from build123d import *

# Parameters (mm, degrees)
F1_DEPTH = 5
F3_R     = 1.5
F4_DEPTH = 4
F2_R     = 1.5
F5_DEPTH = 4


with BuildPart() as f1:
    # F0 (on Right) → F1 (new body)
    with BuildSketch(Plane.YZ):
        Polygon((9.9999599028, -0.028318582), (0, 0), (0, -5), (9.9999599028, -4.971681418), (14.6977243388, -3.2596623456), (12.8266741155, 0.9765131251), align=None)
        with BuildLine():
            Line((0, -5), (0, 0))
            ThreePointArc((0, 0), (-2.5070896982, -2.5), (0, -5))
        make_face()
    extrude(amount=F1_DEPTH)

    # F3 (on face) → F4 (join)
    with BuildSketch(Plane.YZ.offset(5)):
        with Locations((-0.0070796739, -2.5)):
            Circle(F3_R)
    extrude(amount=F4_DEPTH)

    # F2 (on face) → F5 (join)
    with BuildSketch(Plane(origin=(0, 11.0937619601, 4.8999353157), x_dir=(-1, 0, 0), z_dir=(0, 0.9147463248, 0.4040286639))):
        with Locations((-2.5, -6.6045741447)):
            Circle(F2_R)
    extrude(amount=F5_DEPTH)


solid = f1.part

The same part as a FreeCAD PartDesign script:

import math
import FreeCAD as App
import Part
import Sketcher
from FreeCAD import Vector

doc = App.newDocument("Part")
body = doc.addObject("PartDesign::Body", "Body")

sketch1 = body.newObject("Sketcher::SketchObject", "Sketch")
sketch1.AttachmentSupport = (doc.getObject("YZ_Plane"), [""])
sketch1.MapMode = "FlatFace"
sketch1.addGeometry([
    Part.LineSegment(Vector(10, 0, 0), Vector(0, 0, 0)),
    Part.ArcOfCircle(Part.Circle(Vector(0, -2.5, 0), Vector(0, 0, 1), 2.5), math.radians(90), math.radians(270)),
    Part.LineSegment(Vector(0, -5, 0), Vector(10, -5, 0)),
    Part.LineSegment(Vector(10, -5, 0), Vector(14.7, -3.3, 0)),
    Part.LineSegment(Vector(14.7, -3.3, 0), Vector(12.8, 1, 0)),
    Part.LineSegment(Vector(12.8, 1, 0), Vector(10, 0, 0)),
], False)
sketch1.addConstraint([
    Sketcher.Constraint("Tangent", 0, 2, 1, 1),
    Sketcher.Constraint("Tangent", 1, 2, 2, 1),
    Sketcher.Constraint("Coincident", 2, 2, 3, 1),
    Sketcher.Constraint("Coincident", 3, 2, 4, 1),
    Sketcher.Constraint("Coincident", 4, 2, 5, 1),
    Sketcher.Constraint("Coincident", 5, 2, 0, 1),
    Sketcher.Constraint("Coincident", 0, 2, -1, 1),
    Sketcher.Constraint("PointOnObject", 1, 2, -2),
    Sketcher.Constraint("Vertical", 2, 2, 5, 2),
    Sketcher.Constraint("Distance", 0, 10.0),
    Sketcher.Constraint("Distance", 3, 5.0),
    Sketcher.Constraint("Distance", 5, 3.0),
    Sketcher.Constraint("DistanceY", 1, 2, -1, 1, 5.0),
    Sketcher.Constraint("DistanceX", 1, 3, -1, 1, 0.00708),
    Sketcher.Constraint("DistanceY", 2, 2, 3, 2, 1.712019),
    Sketcher.Constraint("DistanceX", 4, 2, 3, 2, 1.87105),
])
pad1 = body.newObject("PartDesign::Pad", "Pad")
pad1.Profile = sketch1
pad1.Length = 5

sketch2 = body.newObject("Sketcher::SketchObject", "Sketch001")
sketch2.AttachmentSupport = (doc.getObject("YZ_Plane"), [""])
sketch2.MapMode = "FlatFace"
sketch2.AttachmentOffset = App.Placement(Vector(0, 0, 5), App.Rotation())
sketch2.addGeometry(Part.Circle(Vector(0, -2.5, 0), Vector(0, 0, 1), 1.5), False)
sketch2.addConstraint([
    Sketcher.Constraint("Diameter", 0, 3.0),
    Sketcher.Constraint("DistanceY", 0, 3, -1, 1, 2.5),
    Sketcher.Constraint("DistanceX", 0, 3, -1, 1, 0.00708),
])
pad2 = body.newObject("PartDesign::Pad", "Pad001")
pad2.Profile = sketch2
pad2.Length = 4

sketch3 = body.newObject("Sketcher::SketchObject", "Sketch002")
sketch3.Placement = App.Placement(Vector(0, 11.093762, 4.899935), App.Rotation(Vector(-1, 0, 0), Vector(0, -0.404028664, 0.914746325), Vector(0, 0.914746325, 0.404028664), "ZXY"))
sketch3.addGeometry(Part.Circle(Vector(-2.5, -6.6, 0), Vector(0, 0, 1), 1.5), False)
sketch3.addConstraint([
    Sketcher.Constraint("Diameter", 0, 3.0),
    Sketcher.Constraint("DistanceX", 0, 3, -1, 1, 2.5),
    Sketcher.Constraint("DistanceY", 0, 3, -1, 1, 6.604574),
])
pad3 = body.newObject("PartDesign::Pad", "Pad002")
pad3.Profile = sketch3
pad3.Length = 4

doc.recompute()
